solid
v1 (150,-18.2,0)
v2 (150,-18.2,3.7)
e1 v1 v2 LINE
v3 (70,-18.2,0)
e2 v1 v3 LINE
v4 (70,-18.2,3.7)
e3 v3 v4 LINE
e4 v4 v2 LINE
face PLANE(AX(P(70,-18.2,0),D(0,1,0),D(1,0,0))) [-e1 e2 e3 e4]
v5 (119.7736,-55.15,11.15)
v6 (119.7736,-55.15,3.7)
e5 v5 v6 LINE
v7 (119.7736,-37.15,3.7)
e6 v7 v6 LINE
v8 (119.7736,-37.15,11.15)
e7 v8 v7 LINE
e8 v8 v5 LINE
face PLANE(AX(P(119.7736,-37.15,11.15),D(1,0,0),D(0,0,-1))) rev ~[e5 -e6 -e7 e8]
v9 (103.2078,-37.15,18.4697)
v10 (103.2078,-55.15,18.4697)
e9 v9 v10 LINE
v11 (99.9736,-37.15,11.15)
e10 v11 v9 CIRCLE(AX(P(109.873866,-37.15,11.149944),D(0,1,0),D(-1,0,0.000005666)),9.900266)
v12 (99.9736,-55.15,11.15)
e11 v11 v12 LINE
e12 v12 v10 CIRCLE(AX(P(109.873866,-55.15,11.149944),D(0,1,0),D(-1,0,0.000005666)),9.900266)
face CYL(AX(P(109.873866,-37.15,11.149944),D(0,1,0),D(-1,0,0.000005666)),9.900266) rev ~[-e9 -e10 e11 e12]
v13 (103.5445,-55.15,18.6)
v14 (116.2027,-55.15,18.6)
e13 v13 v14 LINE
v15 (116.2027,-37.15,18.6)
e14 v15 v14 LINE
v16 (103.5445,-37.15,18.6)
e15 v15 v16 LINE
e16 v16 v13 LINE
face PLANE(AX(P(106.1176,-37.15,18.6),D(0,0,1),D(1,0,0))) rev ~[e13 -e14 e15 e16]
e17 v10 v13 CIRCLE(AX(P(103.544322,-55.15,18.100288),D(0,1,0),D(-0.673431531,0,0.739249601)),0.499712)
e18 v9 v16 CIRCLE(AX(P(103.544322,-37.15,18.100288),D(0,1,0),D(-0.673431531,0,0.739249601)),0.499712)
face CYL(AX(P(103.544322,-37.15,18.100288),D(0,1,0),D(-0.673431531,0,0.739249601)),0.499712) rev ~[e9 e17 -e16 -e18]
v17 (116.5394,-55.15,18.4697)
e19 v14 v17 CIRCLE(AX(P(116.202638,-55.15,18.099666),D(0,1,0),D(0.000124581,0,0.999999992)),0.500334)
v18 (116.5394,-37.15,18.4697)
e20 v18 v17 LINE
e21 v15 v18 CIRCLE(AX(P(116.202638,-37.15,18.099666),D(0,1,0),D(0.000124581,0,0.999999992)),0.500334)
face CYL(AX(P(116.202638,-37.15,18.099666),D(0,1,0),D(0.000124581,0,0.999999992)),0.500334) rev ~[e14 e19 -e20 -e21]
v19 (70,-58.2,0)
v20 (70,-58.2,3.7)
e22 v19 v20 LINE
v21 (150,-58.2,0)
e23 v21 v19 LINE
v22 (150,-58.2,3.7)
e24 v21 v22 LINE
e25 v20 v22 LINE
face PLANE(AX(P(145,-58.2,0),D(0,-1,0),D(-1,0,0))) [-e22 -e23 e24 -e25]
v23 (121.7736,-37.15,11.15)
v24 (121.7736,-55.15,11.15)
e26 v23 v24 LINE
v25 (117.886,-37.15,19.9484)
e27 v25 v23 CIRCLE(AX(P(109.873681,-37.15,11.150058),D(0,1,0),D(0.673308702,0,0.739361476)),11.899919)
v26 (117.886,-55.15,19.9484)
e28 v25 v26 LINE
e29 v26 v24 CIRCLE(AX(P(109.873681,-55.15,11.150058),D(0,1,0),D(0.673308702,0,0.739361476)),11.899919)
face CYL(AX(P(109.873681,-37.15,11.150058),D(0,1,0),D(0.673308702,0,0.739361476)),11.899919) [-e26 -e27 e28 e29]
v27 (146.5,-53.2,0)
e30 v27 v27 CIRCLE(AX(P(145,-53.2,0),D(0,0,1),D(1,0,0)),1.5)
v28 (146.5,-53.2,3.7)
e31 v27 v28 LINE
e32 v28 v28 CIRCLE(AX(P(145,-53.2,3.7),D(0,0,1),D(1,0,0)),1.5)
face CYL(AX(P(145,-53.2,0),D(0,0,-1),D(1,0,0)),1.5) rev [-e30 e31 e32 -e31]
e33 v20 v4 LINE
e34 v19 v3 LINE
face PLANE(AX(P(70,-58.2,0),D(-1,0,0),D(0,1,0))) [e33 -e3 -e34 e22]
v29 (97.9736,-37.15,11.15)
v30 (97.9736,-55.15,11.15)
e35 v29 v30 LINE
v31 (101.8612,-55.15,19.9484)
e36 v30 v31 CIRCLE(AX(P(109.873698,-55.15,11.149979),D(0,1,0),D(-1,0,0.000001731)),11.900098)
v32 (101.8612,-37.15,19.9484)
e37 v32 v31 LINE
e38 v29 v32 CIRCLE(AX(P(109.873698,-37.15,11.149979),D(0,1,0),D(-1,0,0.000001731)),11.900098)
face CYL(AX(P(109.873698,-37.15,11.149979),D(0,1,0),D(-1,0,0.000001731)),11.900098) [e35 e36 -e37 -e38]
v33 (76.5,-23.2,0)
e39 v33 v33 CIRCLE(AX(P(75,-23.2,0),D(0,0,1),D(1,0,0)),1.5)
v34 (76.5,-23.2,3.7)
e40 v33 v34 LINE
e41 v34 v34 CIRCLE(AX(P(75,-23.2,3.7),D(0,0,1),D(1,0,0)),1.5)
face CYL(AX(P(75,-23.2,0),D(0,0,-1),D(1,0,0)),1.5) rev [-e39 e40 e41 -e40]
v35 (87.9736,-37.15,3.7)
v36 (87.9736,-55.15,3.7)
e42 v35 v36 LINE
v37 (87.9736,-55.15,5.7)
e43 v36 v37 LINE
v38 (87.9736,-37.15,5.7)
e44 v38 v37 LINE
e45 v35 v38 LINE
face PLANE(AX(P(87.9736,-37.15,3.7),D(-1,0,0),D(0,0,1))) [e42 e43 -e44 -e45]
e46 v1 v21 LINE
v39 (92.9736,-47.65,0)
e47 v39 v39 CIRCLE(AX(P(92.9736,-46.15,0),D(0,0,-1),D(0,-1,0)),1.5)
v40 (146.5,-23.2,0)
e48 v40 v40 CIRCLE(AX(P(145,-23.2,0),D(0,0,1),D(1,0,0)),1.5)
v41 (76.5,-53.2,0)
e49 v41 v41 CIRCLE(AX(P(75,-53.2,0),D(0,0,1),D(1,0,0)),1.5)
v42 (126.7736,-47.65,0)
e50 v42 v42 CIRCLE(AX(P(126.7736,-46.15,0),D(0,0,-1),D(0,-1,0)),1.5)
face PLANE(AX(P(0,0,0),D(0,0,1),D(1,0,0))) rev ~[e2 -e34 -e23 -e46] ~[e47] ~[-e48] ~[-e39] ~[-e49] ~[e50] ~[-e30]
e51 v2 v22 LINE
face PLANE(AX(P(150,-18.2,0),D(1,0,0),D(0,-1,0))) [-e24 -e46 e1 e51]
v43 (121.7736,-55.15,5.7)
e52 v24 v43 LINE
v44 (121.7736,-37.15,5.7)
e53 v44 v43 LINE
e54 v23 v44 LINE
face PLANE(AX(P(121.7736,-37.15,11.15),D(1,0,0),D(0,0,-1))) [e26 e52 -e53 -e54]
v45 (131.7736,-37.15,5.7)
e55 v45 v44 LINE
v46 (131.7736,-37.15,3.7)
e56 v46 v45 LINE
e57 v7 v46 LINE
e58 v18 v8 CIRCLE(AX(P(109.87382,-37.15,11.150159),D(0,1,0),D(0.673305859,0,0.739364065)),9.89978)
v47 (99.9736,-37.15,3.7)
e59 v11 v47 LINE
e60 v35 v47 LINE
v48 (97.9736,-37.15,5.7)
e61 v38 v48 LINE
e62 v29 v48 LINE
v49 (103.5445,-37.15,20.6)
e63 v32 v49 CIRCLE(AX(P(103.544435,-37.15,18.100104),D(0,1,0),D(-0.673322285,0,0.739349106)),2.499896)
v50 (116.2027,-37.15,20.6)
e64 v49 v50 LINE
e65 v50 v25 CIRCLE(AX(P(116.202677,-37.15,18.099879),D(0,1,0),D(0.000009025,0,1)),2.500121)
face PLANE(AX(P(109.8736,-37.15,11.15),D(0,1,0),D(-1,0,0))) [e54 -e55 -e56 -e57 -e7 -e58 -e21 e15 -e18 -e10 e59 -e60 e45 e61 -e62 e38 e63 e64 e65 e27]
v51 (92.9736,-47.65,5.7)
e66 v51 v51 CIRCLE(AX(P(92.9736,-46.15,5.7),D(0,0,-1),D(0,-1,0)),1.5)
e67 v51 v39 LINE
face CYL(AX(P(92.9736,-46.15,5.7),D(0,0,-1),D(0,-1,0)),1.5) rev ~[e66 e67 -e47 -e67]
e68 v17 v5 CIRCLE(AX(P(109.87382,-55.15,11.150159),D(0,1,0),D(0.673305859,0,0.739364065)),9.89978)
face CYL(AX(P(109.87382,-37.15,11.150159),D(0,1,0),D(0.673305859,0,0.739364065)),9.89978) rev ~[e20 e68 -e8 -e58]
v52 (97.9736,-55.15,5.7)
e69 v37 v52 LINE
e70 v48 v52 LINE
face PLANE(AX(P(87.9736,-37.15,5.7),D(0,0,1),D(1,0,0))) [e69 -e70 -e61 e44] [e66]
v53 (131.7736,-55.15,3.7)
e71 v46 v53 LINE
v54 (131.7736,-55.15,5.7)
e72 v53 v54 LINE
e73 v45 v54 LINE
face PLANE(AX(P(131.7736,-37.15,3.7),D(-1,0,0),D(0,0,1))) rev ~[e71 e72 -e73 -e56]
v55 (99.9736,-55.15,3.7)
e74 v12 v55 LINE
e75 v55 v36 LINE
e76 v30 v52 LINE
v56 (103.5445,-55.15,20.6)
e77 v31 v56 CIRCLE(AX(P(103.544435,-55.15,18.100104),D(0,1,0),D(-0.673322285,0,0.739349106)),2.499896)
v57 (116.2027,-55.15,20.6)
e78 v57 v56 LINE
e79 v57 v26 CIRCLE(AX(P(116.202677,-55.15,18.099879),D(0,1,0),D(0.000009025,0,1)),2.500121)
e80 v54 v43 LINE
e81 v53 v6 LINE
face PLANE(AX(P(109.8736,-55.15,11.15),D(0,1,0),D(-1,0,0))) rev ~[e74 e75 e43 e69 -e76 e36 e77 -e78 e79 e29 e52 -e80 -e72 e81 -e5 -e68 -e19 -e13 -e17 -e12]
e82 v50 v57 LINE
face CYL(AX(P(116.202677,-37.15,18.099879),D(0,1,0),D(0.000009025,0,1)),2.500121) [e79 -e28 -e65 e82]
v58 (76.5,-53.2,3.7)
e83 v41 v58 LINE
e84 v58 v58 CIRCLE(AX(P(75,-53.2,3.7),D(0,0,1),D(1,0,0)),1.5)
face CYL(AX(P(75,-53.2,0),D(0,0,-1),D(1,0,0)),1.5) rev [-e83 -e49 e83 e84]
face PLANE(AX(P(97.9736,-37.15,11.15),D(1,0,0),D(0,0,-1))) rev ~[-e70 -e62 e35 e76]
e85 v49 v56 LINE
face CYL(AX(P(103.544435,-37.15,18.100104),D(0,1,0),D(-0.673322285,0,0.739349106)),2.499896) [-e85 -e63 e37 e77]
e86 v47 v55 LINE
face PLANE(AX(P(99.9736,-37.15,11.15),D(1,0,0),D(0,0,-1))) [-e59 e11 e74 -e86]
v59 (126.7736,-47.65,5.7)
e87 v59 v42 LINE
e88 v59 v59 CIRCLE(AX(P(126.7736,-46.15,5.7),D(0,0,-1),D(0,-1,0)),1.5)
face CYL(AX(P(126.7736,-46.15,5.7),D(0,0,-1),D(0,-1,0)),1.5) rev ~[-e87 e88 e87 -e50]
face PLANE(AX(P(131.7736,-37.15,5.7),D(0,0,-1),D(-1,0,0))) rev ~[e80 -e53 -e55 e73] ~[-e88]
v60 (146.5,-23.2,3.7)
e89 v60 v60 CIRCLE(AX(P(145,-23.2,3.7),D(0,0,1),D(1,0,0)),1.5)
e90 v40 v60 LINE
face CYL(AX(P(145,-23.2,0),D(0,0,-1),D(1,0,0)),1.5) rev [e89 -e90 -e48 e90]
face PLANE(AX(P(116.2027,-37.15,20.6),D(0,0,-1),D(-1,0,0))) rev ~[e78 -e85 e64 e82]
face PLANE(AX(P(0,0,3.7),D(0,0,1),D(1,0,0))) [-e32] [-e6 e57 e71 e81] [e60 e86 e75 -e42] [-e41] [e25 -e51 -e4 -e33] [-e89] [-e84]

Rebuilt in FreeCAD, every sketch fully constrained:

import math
import FreeCAD as App
import Part
import Sketcher

V = App.Vector
Q = App.Units.Quantity


def add_polygon(sketch, points):
    """Adds a closed chain of lines whose ends are joined by coincident constraints."""
    first, n = sketch.GeometryCount, len(points)
    for a, b in zip(points, points[1:] + points[:1]):
        sketch.addGeometry(Part.LineSegment(App.Vector(*a, 0), App.Vector(*b, 0)), False)
    for i in range(n):
        sketch.addConstraint(Sketcher.Constraint("Coincident", first + i, 2, first + (i + 1) % n, 1))

doc = App.newDocument("Part")
body = doc.addObject("PartDesign::Body", "Body")

# Sketch on XY plane
sketch1 = body.newObject("Sketcher::SketchObject", "Sketch")
sketch1.AttachmentSupport = (doc.getObject("XY_Plane"), [""])
sketch1.MapMode = "FlatFace"
add_polygon(sketch1, [(150, -18.2), (70, -18.2), (70, -58.2), (150, -58.2)])  # lines 0-3
sketch1.addGeometry(Part.Circle(V(75, -53.2, 0), V(0, 0, 1), 1.5), False)  # 4
sketch1.addGeometry(Part.Circle(V(145, -53.2, 0), V(0, 0, 1), 1.5), False)  # 5
sketch1.addGeometry(Part.Circle(V(75, -23.2, 0), V(0, 0, 1), 1.5), False)  # 6
sketch1.addGeometry(Part.Circle(V(145, -23.2, 0), V(0, 0, 1), 1.5), False)  # 7
sketch1.addConstraint([
    Sketcher.Constraint("Horizontal", 0),
    Sketcher.Constraint("Vertical", 1),
    Sketcher.Constraint("Horizontal", 2),
    Sketcher.Constraint("Vertical", 3),
    Sketcher.Constraint("Equal", 4, 5),
    Sketcher.Constraint("Equal", 5, 6),
    Sketcher.Constraint("Equal", 6, 7),
    Sketcher.Constraint("Horizontal", 4, 3, 5, 3),
    Sketcher.Constraint("Horizontal", 6, 3, 7, 3),
    Sketcher.Constraint("Vertical", 4, 3, 6, 3),
    Sketcher.Constraint("Vertical", 5, 3, 7, 3),
    Sketcher.Constraint("DistanceX", 0, 2, 0, 1, Q("80 mm")),
    Sketcher.Constraint("DistanceY", 1, 2, 1, 1, Q("40 mm")),
    Sketcher.Constraint("Diameter", 4, Q("3 mm")),
    Sketcher.Constraint("DistanceX", 0, 2, 6, 3, Q("5 mm")),
    Sketcher.Constraint("DistanceY", 6, 3, 0, 2, Q("5 mm")),
    Sketcher.Constraint("DistanceY", 1, 2, 4, 3, Q("5 mm")),
    Sketcher.Constraint("DistanceX", 5, 3, 2, 2, Q("5 mm")),
    Sketcher.Constraint("DistanceX", -1, 1, 4, 3, Q("75 mm")),
    Sketcher.Constraint("DistanceY", 4, 3, -1, 1, Q("53.2 mm")),
])
pad1 = body.newObject("PartDesign::Pad", "Pad")
pad1.Profile = sketch1
pad1.Length = 3.7

# Sketch on XZ plane
sketch2 = body.newObject("Sketcher::SketchObject", "Sketch001")
sketch2.AttachmentSupport = (doc.getObject("XZ_Plane"), [""])
sketch2.MapMode = "FlatFace"
sketch2.AttachmentOffset = App.Placement(V(0, 0, 37.15), App.Rotation())
sketch2.addGeometry([
    Part.LineSegment(V(116.2, 18.6, 0), V(103.54, 18.6, 0)),  # 0
    Part.ArcOfCircle(Part.Circle(V(103.54, 18.1, 0), V(0, 0, 1), 0.5), math.radians(90), math.radians(132)),  # 1
    Part.ArcOfCircle(Part.Circle(V(109.87, 11.15, 0), V(0, 0, 1), 9.9), math.radians(132), math.radians(180)),  # 2
    Part.LineSegment(V(99.97, 11.15, 0), V(99.97, 3.7, 0)),  # 3
    Part.LineSegment(V(99.97, 3.7, 0), V(87.97, 3.7, 0)),  # 4
    Part.LineSegment(V(87.97, 3.7, 0), V(87.97, 5.7, 0)),  # 5
    Part.LineSegment(V(87.97, 5.7, 0), V(97.97, 5.7, 0)),  # 6
    Part.LineSegment(V(97.97, 5.7, 0), V(97.97, 11.15, 0)),  # 7
    Part.ArcOfCircle(Part.Circle(V(109.87, 11.15, 0), V(0, 0, 1), 11.9), math.radians(132), math.radians(180)),  # 8
    Part.ArcOfCircle(Part.Circle(V(103.54, 18.1, 0), V(0, 0, 1), 2.5), math.radians(90), math.radians(132)),  # 9
    Part.LineSegment(V(103.54, 20.6, 0), V(116.2, 20.6, 0)),  # 10
    Part.ArcOfCircle(Part.Circle(V(116.2, 18.1, 0), V(0, 0, 1), 2.5), math.radians(48), math.radians(90)),  # 11
    Part.ArcOfCircle(Part.Circle(V(109.87, 11.15, 0), V(0, 0, 1), 11.9), math.radians(0), math.radians(48)),  # 12
    Part.LineSegment(V(121.77, 11.15, 0), V(121.77, 5.7, 0)),  # 13
    Part.LineSegment(V(121.77, 5.7, 0), V(131.77, 5.7, 0)),  # 14
    Part.LineSegment(V(131.77, 5.7, 0), V(131.77, 3.7, 0)),  # 15
    Part.LineSegment(V(131.77, 3.7, 0), V(119.77, 3.7, 0)),  # 16
    Part.LineSegment(V(119.77, 3.7, 0), V(119.77, 11.15, 0)),  # 17
    Part.ArcOfCircle(Part.Circle(V(109.87, 11.15, 0), V(0, 0, 1), 9.9), math.radians(0), math.radians(48)),  # 18
    Part.ArcOfCircle(Part.Circle(V(116.2, 18.1, 0), V(0, 0, 1), 0.5), math.radians(48), math.radians(90)),  # 19
], False)
sketch2.addConstraint([
    Sketcher.Constraint("Tangent", 0, 2, 1, 1),
    Sketcher.Constraint("Tangent", 1, 2, 2, 1),
    Sketcher.Constraint("Tangent", 2, 2, 3, 1),
    Sketcher.Constraint("Coincident", 3, 2, 4, 1),
    Sketcher.Constraint("Coincident", 4, 2, 5, 1),
    Sketcher.Constraint("Coincident", 5, 2, 6, 1),
    Sketcher.Constraint("Coincident", 6, 2, 7, 1),
    Sketcher.Constraint("Tangent", 7, 2, 8, 2),
    Sketcher.Constraint("Tangent", 8, 1, 9, 2),
    Sketcher.Constraint("Tangent", 9, 1, 10, 1),
    Sketcher.Constraint("Tangent", 10, 2, 11, 2),
    Sketcher.Constraint("Tangent", 11, 1, 12, 2),
    Sketcher.Constraint("Tangent", 12, 1, 13, 1),
    Sketcher.Constraint("Coincident", 13, 2, 14, 1),
    Sketcher.Constraint("Coincident", 14, 2, 15, 1),
    Sketcher.Constraint("Coincident", 15, 2, 16, 1),
    Sketcher.Constraint("Coincident", 16, 2, 17, 1),
    Sketcher.Constraint("Tangent", 17, 2, 18, 1),
    Sketcher.Constraint("Tangent", 18, 2, 19, 1),
    Sketcher.Constraint("Tangent", 19, 2, 0, 1),
    Sketcher.Constraint("Horizontal", 0),
    Sketcher.Constraint("Vertical", 3),
    Sketcher.Constraint("Horizontal", 4),
    Sketcher.Constraint("Vertical", 5),
    Sketcher.Constraint("Horizontal", 6),
    Sketcher.Constraint("Vertical", 7),
    Sketcher.Constraint("Horizontal", 10),
    Sketcher.Constraint("Vertical", 13),
    Sketcher.Constraint("Horizontal", 14),
    Sketcher.Constraint("Vertical", 15),
    Sketcher.Constraint("Horizontal", 16),
    Sketcher.Constraint("Vertical", 17),
    Sketcher.Constraint("Coincident", 8, 3, 2, 3),
    Sketcher.Constraint("Coincident", 9, 3, 1, 3),
    Sketcher.Constraint("Coincident", 12, 3, 2, 3),
    Sketcher.Constraint("Coincident", 18, 3, 2, 3),
    Sketcher.Constraint("Coincident", 19, 3, 11, 3),
    Sketcher.Constraint("Equal", 9, 11),
    Sketcher.Constraint("Equal", 8, 12),
    Sketcher.Constraint("Horizontal", 6, 2, 13, 2),
    Sketcher.Constraint("Horizontal", 4, 2, 15, 2),
    Sketcher.Constraint("Equal", 6, 14),
    Sketcher.Constraint("DistanceX", 6, 1, 6, 2, Q("10 mm")),
    Sketcher.Constraint("DistanceY", 5, 1, 5, 2, Q("2 mm")),
    Sketcher.Constraint("DistanceX", 6, 2, 3, 2, Q("2 mm")),
    Sketcher.Constraint("Radius", 1, Q("0.5 mm")),
    Sketcher.Constraint("Radius", 2, Q("9.9 mm")),
    Sketcher.Constraint("DistanceY", 3, 2, 3, 1, Q("7.45 mm")),
    Sketcher.Constraint("DistanceY", -1, 1, 1, 3, Q("18.1 mm")),
    Sketcher.Constraint("DistanceY", -1, 1, 3, 2, Q("3.7 mm")),
    Sketcher.Constraint("DistanceX", -1, 1, 11, 1, Q("117.886 mm")),
])
pad2 = body.newObject("PartDesign::Pad", "Pad001")
pad2.Profile = sketch2
pad2.Length = 18

# Sketch on XY plane
sketch3 = body.newObject("Sketcher::SketchObject", "Sketch002")
sketch3.AttachmentSupport = (doc.getObject("XY_Plane"), [""])
sketch3.MapMode = "FlatFace"
sketch3.AttachmentOffset = App.Placement(V(0, 0, 5.7), App.Rotation())
sketch3.addGeometry([
    Part.Circle(V(126.8, -46.1, 0), V(0, 0, 1), 1.5),
    Part.Circle(V(93, -46.1, 0), V(0, 0, 1), 1.5),
], False)
sketch3.addConstraint([
    Sketcher.Constraint("Equal", 0, 1),
    Sketcher.Constraint("Horizontal", 0, 3, 1, 3),
    Sketcher.Constraint("Diameter", 0, Q("3 mm")),
    Sketcher.Constraint("DistanceX", 1, 3, 0, 3, Q("33.8 mm")),
    Sketcher.Constraint("DistanceY", 0, 3, -1, 1, Q("46.15 mm")),
    Sketcher.Constraint("DistanceX", -1, 1, 0, 3, Q("126.7736 mm")),
])
doc.recompute()
hole = body.newObject("PartDesign::Hole", "Hole")
hole.Profile = sketch3
hole.ThreadType = "None"
hole.Diameter = 3
hole.DepthType = "ThroughAll"

doc.recompute()
